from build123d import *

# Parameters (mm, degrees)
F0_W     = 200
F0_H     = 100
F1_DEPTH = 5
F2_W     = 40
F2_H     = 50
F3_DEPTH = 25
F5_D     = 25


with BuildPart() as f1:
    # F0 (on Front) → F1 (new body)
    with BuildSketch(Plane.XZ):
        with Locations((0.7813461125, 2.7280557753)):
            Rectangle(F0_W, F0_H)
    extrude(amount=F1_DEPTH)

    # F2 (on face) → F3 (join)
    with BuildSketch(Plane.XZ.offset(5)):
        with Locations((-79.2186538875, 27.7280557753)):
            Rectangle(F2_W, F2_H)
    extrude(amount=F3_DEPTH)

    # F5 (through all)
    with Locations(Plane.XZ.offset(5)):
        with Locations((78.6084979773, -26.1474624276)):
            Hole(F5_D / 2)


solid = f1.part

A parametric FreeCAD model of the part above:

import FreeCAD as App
import Part
import Sketcher

V = App.Vector
Q = App.Units.Quantity

doc = App.newDocument("Part")
params = doc.addObject("Spreadsheet::Sheet", "Params")
for row, (alias, value) in enumerate([
    ("sketch1_width", "200 mm"),
    ("sketch1_height", "100 mm"),
    ("pad1_length", "5 mm"),
    ("sketch2_width", "40 mm"),
    ("sketch2_height", "50 mm"),
    ("pad2_length", "25 mm"),
    ("sketch3_diameter", "25 mm"),
    ("hole_diameter", "25 mm"),
], start=1):
    params.set(f"A{row}", alias)
    params.set(f"B{row}", "=" + value)
    params.setAlias(f"B{row}", alias)

body = doc.addObject("PartDesign::Body", "Body")

# Sketch on XZ plane
sketch1 = body.newObject("Sketcher::SketchObject", "Sketch")
sketch1.AttachmentSupport = (doc.getObject("XZ_Plane"), [""])
sketch1.MapMode = "FlatFace"
sketch1.addGeometry(Part.LineSegment(V(-99, 53, 0), V(-99, -47, 0)), False)
sketch1.addGeometry(Part.LineSegment(V(-99, -47, 0), V(101, -47, 0)), False)
sketch1.addGeometry(Part.LineSegment(V(101, -47, 0), V(101, 53, 0)), False)
sketch1.addGeometry(Part.LineSegment(V(101, 53, 0), V(-99, 53, 0)), False)
sketch1.addConstraint(Sketcher.Constraint("Coincident", 0, 2, 1, 1))
sketch1.addConstraint(Sketcher.Constraint("Coincident", 1, 2, 2, 1))
sketch1.addConstraint(Sketcher.Constraint("Coincident", 2, 2, 3, 1))
sketch1.addConstraint(Sketcher.Constraint("Coincident", 3, 2, 0, 1))
sketch1.addConstraint(Sketcher.Constraint("Vertical", 0))
sketch1.addConstraint(Sketcher.Constraint("Horizontal", 1))
sketch1.addConstraint(Sketcher.Constraint("Vertical", 2))
sketch1.addConstraint(Sketcher.Constraint("Horizontal", 3))
sketch1.addConstraint(Sketcher.Constraint("DistanceX", 1, 1, 1, 2, Q("200 mm")))
sketch1.addConstraint(Sketcher.Constraint("DistanceY", 0, 2, 0, 1, Q("100 mm")))
sketch1.addConstraint(Sketcher.Constraint("DistanceX", 0, 2, -1, 1, Q("99.218654 mm")))
sketch1.addConstraint(Sketcher.Constraint("DistanceY", 0, 2, -1, 1, Q("47.271944 mm")))
sketch1.setExpression("Constraints[8]", "Params.sketch1_width")
sketch1.setExpression("Constraints[9]", "Params.sketch1_height")
pad1 = body.newObject("PartDesign::Pad", "Pad")
pad1.Profile = sketch1
pad1.setExpression("Length", "Params.pad1_length")

# Sketch on XZ plane
sketch2 = body.newObject("Sketcher::SketchObject", "Sketch001")
sketch2.AttachmentSupport = (doc.getObject("XZ_Plane"), [""])
sketch2.MapMode = "FlatFace"
sketch2.AttachmentOffset = App.Placement(V(0, 0, 5), App.Rotation())
sketch2.addGeometry(Part.LineSegment(V(-99, 53, 0), V(-99, 3, 0)), False)
sketch2.addGeometry(Part.LineSegment(V(-99, 3, 0), V(-59, 3, 0)), False)
sketch2.addGeometry(Part.LineSegment(V(-59, 3, 0), V(-59, 53, 0)), False)
sketch2.addGeometry(Part.LineSegment(V(-59, 53, 0), V(-99, 53, 0)), False)
sketch2.addConstraint(Sketcher.Constraint("Coincident", 0, 2, 1, 1))
sketch2.addConstraint(Sketcher.Constraint("Coincident", 1, 2, 2, 1))
sketch2.addConstraint(Sketcher.Constraint("Coincident", 2, 2, 3, 1))
sketch2.addConstraint(Sketcher.Constraint("Coincident", 3, 2, 0, 1))
sketch2.addConstraint(Sketcher.Constraint("Vertical", 0))
sketch2.addConstraint(Sketcher.Constraint("Horizontal", 1))
sketch2.addConstraint(Sketcher.Constraint("Vertical", 2))
sketch2.addConstraint(Sketcher.Constraint("Horizontal", 3))
sketch2.addConstraint(Sketcher.Constraint("DistanceX", 1, 1, 1, 2, Q("40 mm")))
sketch2.addConstraint(Sketcher.Constraint("DistanceY", 0, 2, 0, 1, Q("50 mm")))
sketch2.addConstraint(Sketcher.Constraint("DistanceX", 0, 2, -1, 1, Q("99.218654 mm")))
sketch2.addConstraint(Sketcher.Constraint("DistanceY", -1, 1, 0, 2, Q("2.728056 mm")))
sketch2.setExpression("Constraints[8]", "Params.sketch2_width")
sketch2.setExpression("Constraints[9]", "Params.sketch2_height")
pad2 = body.newObject("PartDesign::Pad", "Pad001")
pad2.Profile = sketch2
pad2.setExpression("Length", "Params.pad2_length")

# Sketch on XZ plane
sketch3 = body.newObject("Sketcher::SketchObject", "Sketch002")
sketch3.AttachmentSupport = (doc.getObject("XZ_Plane"), [""])
sketch3.MapMode = "FlatFace"
sketch3.AttachmentOffset = App.Placement(V(0, 0, 5), App.Rotation())
sketch3.addGeometry(Part.Circle(V(79, -26, 0), V(0, 0, 1), 12), False)
sketch3.addConstraint(Sketcher.Constraint("Diameter", 0, Q("25 mm")))
sketch3.addConstraint(Sketcher.Constraint("DistanceX", -1, 1, 0, 3, Q("78.608498 mm")))
sketch3.addConstraint(Sketcher.Constraint("DistanceY", 0, 3, -1, 1, Q("26.147462 mm")))
sketch3.setExpression("Constraints[0]", "Params.sketch3_diameter")
doc.recompute()
hole = body.newObject("PartDesign::Hole", "Hole")
hole.Profile = sketch3
hole.ThreadType = "None"
hole.setExpression("Diameter", "Params.hole_diameter")
hole.DepthType = "ThroughAll"

doc.recompute()
